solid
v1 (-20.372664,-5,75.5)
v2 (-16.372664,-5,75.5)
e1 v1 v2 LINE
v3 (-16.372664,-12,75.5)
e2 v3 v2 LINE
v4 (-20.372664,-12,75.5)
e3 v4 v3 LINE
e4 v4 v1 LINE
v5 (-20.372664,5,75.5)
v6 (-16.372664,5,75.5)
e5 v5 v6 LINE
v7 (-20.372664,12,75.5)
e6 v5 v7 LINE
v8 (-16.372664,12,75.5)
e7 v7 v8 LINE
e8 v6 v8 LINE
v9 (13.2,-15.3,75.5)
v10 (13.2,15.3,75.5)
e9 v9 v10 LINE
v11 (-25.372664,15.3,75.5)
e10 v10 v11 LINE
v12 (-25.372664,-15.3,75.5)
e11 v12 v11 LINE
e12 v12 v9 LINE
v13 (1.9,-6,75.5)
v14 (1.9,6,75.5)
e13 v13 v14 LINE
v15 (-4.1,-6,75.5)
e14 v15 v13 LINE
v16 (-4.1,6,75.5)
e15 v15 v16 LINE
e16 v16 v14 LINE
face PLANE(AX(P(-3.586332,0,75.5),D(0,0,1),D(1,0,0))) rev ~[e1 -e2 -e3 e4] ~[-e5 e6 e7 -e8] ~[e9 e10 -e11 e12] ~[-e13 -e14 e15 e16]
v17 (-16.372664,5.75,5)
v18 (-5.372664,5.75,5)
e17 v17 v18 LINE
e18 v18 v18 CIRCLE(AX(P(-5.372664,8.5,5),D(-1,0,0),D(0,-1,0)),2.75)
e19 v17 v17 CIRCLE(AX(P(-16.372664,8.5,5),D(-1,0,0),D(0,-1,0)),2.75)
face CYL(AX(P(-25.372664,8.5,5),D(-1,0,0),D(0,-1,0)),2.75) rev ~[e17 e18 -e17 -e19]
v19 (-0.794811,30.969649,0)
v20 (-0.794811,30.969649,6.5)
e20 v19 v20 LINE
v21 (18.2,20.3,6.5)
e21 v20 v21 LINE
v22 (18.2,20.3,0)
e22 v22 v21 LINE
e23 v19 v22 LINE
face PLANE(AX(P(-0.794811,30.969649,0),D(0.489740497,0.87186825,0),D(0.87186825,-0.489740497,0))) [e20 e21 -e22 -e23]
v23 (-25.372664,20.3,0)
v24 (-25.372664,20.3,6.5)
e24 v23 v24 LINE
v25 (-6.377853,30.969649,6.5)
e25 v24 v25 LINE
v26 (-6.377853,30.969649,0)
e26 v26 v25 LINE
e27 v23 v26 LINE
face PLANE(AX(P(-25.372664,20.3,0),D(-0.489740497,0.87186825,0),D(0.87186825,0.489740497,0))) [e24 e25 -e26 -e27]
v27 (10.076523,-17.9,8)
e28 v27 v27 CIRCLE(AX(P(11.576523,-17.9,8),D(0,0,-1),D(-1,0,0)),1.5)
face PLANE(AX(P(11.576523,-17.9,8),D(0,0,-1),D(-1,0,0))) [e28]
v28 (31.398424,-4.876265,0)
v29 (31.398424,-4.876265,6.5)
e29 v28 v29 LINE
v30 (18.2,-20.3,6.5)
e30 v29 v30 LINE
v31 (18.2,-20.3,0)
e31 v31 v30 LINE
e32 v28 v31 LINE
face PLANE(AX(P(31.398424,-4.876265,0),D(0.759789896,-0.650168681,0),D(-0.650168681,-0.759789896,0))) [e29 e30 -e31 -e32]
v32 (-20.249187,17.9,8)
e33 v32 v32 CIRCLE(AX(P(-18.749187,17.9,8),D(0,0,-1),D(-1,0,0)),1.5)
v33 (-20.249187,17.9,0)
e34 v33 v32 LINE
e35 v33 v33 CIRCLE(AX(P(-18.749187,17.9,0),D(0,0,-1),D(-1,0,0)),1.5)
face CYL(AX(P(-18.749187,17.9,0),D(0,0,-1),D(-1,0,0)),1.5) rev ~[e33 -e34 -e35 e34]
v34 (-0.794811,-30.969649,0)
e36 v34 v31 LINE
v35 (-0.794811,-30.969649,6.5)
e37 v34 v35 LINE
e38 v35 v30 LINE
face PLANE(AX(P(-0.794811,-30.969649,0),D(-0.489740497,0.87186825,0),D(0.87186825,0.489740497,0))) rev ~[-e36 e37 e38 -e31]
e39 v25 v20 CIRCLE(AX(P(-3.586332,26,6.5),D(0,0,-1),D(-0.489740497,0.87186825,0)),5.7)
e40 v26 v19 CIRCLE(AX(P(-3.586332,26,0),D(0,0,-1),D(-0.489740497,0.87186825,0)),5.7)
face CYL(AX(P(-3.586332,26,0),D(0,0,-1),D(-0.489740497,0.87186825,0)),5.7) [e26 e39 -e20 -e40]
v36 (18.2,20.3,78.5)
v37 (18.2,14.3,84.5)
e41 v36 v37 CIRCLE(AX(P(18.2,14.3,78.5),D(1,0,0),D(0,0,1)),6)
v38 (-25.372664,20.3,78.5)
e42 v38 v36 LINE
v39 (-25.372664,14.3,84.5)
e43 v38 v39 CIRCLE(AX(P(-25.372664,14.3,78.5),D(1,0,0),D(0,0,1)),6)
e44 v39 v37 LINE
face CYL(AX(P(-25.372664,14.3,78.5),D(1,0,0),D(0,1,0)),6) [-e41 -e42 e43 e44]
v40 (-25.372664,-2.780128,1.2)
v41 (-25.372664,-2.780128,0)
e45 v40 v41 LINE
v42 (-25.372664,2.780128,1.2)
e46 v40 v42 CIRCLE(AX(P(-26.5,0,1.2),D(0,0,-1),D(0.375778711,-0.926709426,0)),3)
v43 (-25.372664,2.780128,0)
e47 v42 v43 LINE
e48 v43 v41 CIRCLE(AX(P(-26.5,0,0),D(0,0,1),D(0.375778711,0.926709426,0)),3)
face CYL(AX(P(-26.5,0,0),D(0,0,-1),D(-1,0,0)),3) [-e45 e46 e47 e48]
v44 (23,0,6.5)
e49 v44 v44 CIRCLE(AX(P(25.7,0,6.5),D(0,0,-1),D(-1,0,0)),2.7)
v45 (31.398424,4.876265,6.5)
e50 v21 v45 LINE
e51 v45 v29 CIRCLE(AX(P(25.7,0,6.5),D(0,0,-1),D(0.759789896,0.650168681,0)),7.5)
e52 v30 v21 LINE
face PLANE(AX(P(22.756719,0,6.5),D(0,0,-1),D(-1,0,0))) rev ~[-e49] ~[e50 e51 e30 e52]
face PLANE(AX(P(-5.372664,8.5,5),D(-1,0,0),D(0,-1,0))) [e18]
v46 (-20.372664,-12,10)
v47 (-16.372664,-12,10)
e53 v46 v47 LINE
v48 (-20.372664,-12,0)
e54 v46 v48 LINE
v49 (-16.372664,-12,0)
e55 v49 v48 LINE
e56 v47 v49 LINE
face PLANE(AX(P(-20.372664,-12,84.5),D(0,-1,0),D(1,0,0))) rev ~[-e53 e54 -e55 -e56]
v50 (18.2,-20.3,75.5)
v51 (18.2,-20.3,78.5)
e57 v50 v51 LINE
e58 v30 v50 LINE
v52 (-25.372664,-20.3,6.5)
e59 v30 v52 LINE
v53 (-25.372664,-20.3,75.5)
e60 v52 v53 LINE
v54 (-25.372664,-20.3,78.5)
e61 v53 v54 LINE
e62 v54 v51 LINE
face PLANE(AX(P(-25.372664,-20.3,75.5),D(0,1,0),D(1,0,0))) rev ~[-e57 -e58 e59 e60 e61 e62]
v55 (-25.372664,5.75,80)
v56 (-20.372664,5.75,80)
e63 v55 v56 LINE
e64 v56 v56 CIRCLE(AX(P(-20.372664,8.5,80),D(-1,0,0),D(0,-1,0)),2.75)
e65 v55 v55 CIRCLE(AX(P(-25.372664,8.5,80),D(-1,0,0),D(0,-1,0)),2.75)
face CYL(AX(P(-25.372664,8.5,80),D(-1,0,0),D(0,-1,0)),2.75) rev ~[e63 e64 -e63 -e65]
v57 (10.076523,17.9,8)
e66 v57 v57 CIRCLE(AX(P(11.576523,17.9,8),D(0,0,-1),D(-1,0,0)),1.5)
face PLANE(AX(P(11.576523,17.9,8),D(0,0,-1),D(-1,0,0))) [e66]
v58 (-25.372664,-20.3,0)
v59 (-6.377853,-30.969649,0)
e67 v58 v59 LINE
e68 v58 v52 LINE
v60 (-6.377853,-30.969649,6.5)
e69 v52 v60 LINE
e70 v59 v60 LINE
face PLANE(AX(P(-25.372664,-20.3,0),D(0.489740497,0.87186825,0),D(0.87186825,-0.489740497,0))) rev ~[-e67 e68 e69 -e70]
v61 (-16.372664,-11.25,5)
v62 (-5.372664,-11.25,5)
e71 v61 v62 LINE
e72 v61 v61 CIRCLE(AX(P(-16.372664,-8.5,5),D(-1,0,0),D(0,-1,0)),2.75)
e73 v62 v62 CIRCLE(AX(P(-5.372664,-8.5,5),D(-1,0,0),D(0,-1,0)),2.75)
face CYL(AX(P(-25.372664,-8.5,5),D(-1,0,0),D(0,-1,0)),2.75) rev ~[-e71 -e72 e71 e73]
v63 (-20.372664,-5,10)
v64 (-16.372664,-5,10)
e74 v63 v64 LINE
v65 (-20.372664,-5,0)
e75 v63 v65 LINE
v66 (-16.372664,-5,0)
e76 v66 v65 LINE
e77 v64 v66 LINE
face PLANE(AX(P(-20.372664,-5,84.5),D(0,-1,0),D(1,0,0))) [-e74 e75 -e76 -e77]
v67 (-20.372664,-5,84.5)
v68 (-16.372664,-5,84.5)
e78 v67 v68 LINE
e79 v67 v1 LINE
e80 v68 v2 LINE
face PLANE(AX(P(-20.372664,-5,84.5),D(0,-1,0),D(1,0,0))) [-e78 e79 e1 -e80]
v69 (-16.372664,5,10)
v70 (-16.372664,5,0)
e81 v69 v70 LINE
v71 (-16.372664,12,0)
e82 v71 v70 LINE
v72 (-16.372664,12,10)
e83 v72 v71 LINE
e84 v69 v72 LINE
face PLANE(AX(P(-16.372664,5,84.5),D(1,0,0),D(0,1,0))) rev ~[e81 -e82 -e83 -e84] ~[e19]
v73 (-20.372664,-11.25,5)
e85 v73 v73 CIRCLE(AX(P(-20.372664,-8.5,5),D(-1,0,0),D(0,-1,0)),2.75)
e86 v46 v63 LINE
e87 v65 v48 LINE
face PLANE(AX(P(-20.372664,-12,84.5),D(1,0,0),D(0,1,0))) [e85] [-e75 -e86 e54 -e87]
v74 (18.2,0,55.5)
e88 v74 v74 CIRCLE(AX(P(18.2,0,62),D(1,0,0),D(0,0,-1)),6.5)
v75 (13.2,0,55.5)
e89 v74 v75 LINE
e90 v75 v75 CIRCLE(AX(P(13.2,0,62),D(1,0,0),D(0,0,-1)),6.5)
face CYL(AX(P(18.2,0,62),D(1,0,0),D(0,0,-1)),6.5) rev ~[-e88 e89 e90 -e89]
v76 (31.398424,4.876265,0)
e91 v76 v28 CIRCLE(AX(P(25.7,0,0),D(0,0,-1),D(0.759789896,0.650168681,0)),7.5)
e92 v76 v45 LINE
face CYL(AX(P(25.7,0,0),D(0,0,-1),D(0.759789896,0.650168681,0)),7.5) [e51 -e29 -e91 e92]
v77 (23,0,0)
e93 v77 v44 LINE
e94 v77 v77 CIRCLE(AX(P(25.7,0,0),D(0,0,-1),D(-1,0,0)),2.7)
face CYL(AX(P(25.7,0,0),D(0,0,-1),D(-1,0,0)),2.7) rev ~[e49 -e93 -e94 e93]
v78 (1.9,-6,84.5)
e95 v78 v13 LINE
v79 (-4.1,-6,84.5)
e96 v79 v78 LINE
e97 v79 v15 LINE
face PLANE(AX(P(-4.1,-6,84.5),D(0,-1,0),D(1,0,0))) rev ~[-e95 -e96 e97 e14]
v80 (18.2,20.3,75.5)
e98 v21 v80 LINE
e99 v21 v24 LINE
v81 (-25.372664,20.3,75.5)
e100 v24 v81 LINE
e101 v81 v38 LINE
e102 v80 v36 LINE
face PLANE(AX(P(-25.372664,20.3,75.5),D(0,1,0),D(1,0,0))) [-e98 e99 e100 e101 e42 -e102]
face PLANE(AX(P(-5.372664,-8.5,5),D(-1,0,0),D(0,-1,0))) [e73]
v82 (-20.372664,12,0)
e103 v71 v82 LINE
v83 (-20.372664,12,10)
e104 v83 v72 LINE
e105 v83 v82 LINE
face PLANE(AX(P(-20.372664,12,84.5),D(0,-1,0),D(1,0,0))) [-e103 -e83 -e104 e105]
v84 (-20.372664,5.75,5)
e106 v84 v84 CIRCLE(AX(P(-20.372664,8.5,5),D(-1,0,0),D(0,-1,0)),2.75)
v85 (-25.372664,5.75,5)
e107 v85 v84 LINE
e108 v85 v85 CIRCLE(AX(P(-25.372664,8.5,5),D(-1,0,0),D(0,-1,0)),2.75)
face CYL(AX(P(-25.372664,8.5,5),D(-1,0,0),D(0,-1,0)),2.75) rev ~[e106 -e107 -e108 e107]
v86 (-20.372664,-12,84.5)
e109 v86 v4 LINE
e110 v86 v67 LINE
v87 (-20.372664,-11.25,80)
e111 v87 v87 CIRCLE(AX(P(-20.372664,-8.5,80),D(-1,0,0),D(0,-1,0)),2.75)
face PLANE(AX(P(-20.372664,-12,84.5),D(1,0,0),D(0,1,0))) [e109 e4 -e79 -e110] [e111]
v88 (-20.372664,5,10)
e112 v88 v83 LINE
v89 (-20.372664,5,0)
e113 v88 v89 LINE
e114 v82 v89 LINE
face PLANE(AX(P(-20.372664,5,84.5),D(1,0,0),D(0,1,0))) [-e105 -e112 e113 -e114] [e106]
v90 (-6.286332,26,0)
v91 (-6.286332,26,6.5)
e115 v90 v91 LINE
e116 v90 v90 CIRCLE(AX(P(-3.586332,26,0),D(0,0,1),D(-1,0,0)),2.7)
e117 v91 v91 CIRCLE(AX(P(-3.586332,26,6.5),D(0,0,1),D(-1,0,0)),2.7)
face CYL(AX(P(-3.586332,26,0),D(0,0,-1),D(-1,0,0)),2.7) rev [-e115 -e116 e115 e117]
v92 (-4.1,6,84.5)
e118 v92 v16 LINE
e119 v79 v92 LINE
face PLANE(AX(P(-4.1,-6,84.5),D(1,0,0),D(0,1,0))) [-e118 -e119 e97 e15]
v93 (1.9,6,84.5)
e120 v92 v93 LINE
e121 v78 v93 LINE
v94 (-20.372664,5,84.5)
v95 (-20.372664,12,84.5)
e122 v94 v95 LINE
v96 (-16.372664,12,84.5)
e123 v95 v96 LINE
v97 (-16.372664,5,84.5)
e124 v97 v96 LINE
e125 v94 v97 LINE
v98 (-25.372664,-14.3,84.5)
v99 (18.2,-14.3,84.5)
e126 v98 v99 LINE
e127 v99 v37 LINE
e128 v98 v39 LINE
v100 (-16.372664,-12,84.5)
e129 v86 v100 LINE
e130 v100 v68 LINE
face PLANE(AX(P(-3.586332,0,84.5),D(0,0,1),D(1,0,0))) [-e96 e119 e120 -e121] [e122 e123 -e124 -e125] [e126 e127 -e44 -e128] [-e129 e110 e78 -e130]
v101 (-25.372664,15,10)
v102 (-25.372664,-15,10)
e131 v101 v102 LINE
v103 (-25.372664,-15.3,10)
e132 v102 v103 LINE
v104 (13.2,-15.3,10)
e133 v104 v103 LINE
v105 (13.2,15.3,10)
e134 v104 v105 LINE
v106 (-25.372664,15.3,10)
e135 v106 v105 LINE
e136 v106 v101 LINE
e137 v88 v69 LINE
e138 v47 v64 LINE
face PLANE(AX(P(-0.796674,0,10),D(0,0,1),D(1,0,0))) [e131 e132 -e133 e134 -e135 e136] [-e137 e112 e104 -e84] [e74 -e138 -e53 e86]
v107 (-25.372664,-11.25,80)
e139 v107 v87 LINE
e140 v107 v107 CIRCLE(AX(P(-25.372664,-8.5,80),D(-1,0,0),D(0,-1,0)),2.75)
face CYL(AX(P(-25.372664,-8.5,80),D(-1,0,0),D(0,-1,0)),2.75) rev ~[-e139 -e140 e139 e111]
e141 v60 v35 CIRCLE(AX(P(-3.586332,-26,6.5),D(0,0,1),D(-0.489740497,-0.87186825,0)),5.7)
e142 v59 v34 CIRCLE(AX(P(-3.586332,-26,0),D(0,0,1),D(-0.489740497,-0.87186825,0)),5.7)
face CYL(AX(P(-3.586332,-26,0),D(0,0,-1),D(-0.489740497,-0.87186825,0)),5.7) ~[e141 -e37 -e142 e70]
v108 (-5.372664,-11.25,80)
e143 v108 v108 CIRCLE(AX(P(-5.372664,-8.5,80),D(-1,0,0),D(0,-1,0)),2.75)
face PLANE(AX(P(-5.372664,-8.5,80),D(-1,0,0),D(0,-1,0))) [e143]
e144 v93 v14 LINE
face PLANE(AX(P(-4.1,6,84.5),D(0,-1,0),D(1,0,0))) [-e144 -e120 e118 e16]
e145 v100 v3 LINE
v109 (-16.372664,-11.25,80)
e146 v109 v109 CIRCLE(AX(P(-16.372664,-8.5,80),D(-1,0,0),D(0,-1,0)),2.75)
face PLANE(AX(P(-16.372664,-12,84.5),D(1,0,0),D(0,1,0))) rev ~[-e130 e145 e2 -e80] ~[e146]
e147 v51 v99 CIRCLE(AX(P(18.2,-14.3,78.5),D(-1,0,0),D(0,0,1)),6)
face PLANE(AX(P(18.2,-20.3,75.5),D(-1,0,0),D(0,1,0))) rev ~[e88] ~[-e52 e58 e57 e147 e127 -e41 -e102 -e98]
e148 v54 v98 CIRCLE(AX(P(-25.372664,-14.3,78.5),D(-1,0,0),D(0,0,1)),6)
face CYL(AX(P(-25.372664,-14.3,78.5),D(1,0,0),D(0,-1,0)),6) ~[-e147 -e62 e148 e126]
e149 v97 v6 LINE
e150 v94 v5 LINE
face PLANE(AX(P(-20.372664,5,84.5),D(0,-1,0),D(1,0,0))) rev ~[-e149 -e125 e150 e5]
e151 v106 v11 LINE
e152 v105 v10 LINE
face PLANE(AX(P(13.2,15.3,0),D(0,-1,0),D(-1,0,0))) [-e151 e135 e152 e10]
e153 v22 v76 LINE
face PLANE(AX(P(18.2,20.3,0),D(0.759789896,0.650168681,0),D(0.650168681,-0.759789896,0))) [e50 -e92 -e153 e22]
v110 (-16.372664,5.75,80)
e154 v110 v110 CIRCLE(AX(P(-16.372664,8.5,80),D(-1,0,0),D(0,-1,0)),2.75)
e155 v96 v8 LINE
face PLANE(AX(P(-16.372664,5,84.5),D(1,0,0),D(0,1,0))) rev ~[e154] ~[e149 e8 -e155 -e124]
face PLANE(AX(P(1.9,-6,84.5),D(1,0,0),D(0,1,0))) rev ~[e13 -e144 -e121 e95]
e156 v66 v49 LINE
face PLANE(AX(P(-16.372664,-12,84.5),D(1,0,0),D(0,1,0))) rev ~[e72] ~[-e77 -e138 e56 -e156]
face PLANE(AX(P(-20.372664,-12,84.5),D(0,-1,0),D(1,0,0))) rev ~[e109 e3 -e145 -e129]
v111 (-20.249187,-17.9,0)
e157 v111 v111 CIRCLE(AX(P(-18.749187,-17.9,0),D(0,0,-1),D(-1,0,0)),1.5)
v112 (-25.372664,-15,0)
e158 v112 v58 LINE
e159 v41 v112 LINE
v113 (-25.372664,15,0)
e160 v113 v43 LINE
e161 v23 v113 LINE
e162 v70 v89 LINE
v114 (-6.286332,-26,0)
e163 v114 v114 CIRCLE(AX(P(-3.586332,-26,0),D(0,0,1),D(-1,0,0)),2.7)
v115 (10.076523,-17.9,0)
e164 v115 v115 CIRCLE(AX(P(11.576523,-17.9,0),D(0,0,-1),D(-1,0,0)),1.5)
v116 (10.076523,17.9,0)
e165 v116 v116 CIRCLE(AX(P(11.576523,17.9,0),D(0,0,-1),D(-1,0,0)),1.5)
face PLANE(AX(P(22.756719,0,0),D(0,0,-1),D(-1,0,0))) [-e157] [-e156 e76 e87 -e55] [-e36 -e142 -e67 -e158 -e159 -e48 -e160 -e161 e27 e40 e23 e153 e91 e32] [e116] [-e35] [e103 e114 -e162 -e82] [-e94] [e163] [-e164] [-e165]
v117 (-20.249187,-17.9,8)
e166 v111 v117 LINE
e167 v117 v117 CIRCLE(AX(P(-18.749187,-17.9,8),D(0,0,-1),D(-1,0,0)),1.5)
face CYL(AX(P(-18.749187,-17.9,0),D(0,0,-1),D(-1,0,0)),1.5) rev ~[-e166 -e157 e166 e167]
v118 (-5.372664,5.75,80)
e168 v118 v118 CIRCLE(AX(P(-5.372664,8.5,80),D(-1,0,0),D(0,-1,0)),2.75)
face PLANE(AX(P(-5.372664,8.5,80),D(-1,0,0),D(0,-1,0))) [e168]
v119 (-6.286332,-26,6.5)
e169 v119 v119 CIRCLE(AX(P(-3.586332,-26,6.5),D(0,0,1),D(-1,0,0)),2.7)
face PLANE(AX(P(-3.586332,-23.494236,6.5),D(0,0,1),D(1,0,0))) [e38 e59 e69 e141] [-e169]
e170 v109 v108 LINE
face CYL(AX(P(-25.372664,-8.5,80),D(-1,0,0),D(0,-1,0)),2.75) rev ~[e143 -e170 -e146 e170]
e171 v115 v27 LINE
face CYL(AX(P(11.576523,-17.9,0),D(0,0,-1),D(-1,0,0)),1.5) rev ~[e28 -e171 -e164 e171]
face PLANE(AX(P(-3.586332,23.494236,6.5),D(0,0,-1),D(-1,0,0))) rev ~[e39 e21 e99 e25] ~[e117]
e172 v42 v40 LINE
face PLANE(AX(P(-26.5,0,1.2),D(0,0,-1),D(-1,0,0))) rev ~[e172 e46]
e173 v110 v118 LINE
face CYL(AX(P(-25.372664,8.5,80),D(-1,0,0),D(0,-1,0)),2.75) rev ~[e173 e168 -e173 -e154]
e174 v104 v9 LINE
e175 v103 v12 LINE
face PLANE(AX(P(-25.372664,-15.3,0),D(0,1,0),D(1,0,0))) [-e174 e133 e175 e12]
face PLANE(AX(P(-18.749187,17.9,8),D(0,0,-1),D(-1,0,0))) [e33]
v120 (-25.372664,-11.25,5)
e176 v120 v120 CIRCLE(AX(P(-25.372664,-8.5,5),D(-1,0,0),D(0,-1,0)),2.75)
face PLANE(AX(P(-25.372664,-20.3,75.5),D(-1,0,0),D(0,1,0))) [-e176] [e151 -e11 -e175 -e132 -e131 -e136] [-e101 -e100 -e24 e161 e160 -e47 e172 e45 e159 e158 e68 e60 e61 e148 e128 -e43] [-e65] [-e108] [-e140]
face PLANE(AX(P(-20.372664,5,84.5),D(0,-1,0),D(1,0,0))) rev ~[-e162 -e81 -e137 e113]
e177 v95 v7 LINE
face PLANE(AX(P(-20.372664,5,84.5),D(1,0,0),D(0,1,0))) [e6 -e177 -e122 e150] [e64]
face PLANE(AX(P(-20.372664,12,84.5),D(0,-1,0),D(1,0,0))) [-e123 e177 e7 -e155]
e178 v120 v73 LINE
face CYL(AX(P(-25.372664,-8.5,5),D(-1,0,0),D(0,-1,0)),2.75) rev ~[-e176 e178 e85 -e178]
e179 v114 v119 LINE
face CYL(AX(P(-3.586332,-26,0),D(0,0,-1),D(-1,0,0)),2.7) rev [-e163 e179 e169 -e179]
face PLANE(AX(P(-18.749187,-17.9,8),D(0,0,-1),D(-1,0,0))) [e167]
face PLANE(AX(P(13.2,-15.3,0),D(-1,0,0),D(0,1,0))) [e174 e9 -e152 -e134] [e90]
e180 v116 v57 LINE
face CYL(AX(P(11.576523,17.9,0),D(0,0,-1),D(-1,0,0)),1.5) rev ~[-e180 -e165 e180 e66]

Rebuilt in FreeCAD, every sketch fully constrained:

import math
import FreeCAD as App
import Part
import Sketcher

V = App.Vector
Q = App.Units.Quantity


def edges_at(feature, points):
    """Names of the edges that pass closest to the given points."""
    edges = feature.Shape.Edges
    near = lambda p: min(range(len(edges)), key=lambda i: edges[i].distToShape(Part.Vertex(*p))[0])
    return sorted({f"Edge{near(p) + 1}" for p in points})

doc = App.newDocument("Part")
body = doc.addObject("PartDesign::Body", "Body")

# Sketch on XY plane
sketch1 = body.newObject("Sketcher::SketchObject", "Sketch")
sketch1.AttachmentSupport = (doc.getObject("XY_Plane"), [""])
sketch1.MapMode = "FlatFace"
sketch1.addGeometry(Part.LineSegment(V(-52, -15, 0), V(13, -15, 0)), False)
sketch1.addGeometry(Part.LineSegment(V(13, -15, 0), V(13, 15, 0)), False)
sketch1.addGeometry(Part.LineSegment(V(13, 15, 0), V(-52, 15, 0)), False)
sketch1.addGeometry(Part.LineSegment(V(-52, 15, 0), V(-52, -15, 0)), False)
sketch1.addConstraint(Sketcher.Constraint("Coincident", 0, 2, 1, 1))
sketch1.addConstraint(Sketcher.Constraint("Coincident", 1, 2, 2, 1))
sketch1.addConstraint(Sketcher.Constraint("Coincident", 2, 2, 3, 1))
sketch1.addConstraint(Sketcher.Constraint("Coincident", 3, 2, 0, 1))
sketch1.addConstraint(Sketcher.Constraint("Horizontal", 0))
sketch1.addConstraint(Sketcher.Constraint("Vertical", 1))
sketch1.addConstraint(Sketcher.Constraint("Horizontal", 2))
sketch1.addConstraint(Sketcher.Constraint("Vertical", 3))
sketch1.addConstraint(Sketcher.Constraint("DistanceY", 1, 1, 1, 2, Q("30 mm")))
sketch1.addConstraint(Sketcher.Constraint("DistanceX", 0, 1, 0, 2, Q("64.8 mm")))
sketch1.addConstraint(Sketcher.Constraint("DistanceY", 0, 2, -1, 1, Q("15 mm")))
sketch1.addConstraint(Sketcher.Constraint("DistanceX", -1, 1, 0, 2, Q("12.9 mm")))
pad1 = body.newObject("PartDesign::Pad", "Pad")
pad1.Profile = sketch1
pad1.Length = 10

# Sketch on XZ plane
sketch2 = body.newObject("Sketcher::SketchObject", "Sketch001")
sketch2.AttachmentSupport = (doc.getObject("XZ_Plane"), [""])
sketch2.MapMode = "FlatFace"
sketch2.AttachmentOffset = App.Placement(V(0, 0, -15), App.Rotation())
sketch2.addGeometry(Part.LineSegment(V(-52, 0, 0), V(-52, 10, 0)), False)
sketch2.addGeometry(Part.LineSegment(V(-52, 10, 0), V(-25, 10, 0)), False)
sketch2.addGeometry(Part.LineSegment(V(-25, 10, 0), V(-25, 0, 0)), False)
sketch2.addGeometry(Part.LineSegment(V(-25, 0, 0), V(-52, 0, 0)), False)
sketch2.addConstraint(Sketcher.Constraint("Coincident", 0, 2, 1, 1))
sketch2.addConstraint(Sketcher.Constraint("Coincident", 1, 2, 2, 1))
sketch2.addConstraint(Sketcher.Constraint("Coincident", 2, 2, 3, 1))
sketch2.addConstraint(Sketcher.Constraint("Coincident", 3, 2, 0, 1))
sketch2.addConstraint(Sketcher.Constraint("Vertical", 0))
sketch2.addConstraint(Sketcher.Constraint("Horizontal", 1))
sketch2.addConstraint(Sketcher.Constraint("Vertical", 2))
sketch2.addConstraint(Sketcher.Constraint("Horizontal", 3))
sketch2.addConstraint(Sketcher.Constraint("PointOnObject", 2, 2, -1))
sketch2.addConstraint(Sketcher.Constraint("DistanceY", 0, 1, 0, 2, Q("10 mm")))
sketch2.addConstraint(Sketcher.Constraint("DistanceX", 0, 2, -1, 1, Q("51.9 mm")))
sketch2.addConstraint(Sketcher.Constraint("DistanceX", 1, 1, 1, 2, Q("26.527336 mm")))
pocket1 = body.newObject("PartDesign::Pocket", "Pocket")
pocket1.Profile = sketch2
pocket1.Length = 80
pocket1.Reversed = True

# Sketch on YZ plane
sketch3 = body.newObject("Sketcher::SketchObject", "Sketch002")
sketch3.AttachmentSupport = (doc.getObject("YZ_Plane"), [""])
sketch3.MapMode = "FlatFace"
sketch3.AttachmentOffset = App.Placement(V(0, 0, -25.372664), App.Rotation())
sketch3.addGeometry(Part.Circle(V(-8.5, 5, 0), V(0, 0, 1), 2.8), False)
sketch3.addGeometry(Part.Circle(V(8.5, 5, 0), V(0, 0, 1), 2.8), False)
sketch3.addConstraint(Sketcher.Constraint("Equal", 0, 1))
sketch3.addConstraint(Sketcher.Constraint("Symmetric", 0, 3, 1, 3, -2))
sketch3.addConstraint(Sketcher.Constraint("Diameter", 0, Q("5.5 mm")))
sketch3.addConstraint(Sketcher.Constraint("DistanceY", -1, 1, 0, 3, Q("5 mm")))
sketch3.addConstraint(Sketcher.Constraint("DistanceX", 0, 3, 1, 3, Q("17 mm")))
pocket2 = body.newObject("PartDesign::Pocket", "Pocket001")
pocket2.Profile = sketch3
pocket2.Length = 20
pocket2.Reversed = True

# Sketch on XY plane
sketch4 = body.newObject("Sketcher::SketchObject", "Sketch003")
sketch4.AttachmentSupport = (doc.getObject("XY_Plane"), [""])
sketch4.MapMode = "FlatFace"
sketch4.addGeometry(Part.LineSegment(V(13.2, -15.3, 0), V(-25.37, -15.3, 0)), False)
sketch4.addGeometry(Part.LineSegment(V(-25.37, -15.3, 0), V(-25.37, -15, 0)), False)
sketch4.addGeometry(Part.LineSegment(V(-25.37, -15, 0), V(12.9, -15, 0)), False)
sketch4.addGeometry(Part.LineSegment(V(12.9, -15, 0), V(12.9, 15, 0)), False)
sketch4.addGeometry(Part.LineSegment(V(12.9, 15, 0), V(-25.37, 15, 0)), False)
sketch4.addGeometry(Part.LineSegment(V(-25.37, 15, 0), V(-25.37, 15.3, 0)), False)
sketch4.addGeometry(Part.LineSegment(V(-25.37, 15.3, 0), V(13.2, 15.3, 0)), False)
sketch4.addGeometry(Part.LineSegment(V(13.2, 15.3, 0), V(13.2, -15.3, 0)), False)
sketch4.addConstraint(Sketcher.Constraint("Coincident", 0, 2, 1, 1))
sketch4.addConstraint(Sketcher.Constraint("Coincident", 1, 2, 2, 1))
sketch4.addConstraint(Sketcher.Constraint("Coincident", 2, 2, 3, 1))
sketch4.addConstraint(Sketcher.Constraint("Coincident", 3, 2, 4, 1))
sketch4.addConstraint(Sketcher.Constraint("Coincident", 4, 2, 5, 1))
sketch4.addConstraint(Sketcher.Constraint("Coincident", 5, 2, 6, 1))
sketch4.addConstraint(Sketcher.Constraint("Coincident", 6, 2, 7, 1))
sketch4.addConstraint(Sketcher.Constraint("Coincident", 7, 2, 0, 1))
sketch4.addConstraint(Sketcher.Constraint("Horizontal", 0))
sketch4.addConstraint(Sketcher.Constraint("Vertical", 1))
sketch4.addConstraint(Sketcher.Constraint("Horizontal", 2))
sketch4.addConstraint(Sketcher.Constraint("Vertical", 3))
sketch4.addConstraint(Sketcher.Constraint("Horizontal", 4))
sketch4.addConstraint(Sketcher.Constraint("Vertical", 5))
sketch4.addConstraint(Sketcher.Constraint("Horizontal", 6))
sketch4.addConstraint(Sketcher.Constraint("Vertical", 7))
sketch4.addConstraint(Sketcher.Constraint("Symmetric", 1, 2, 4, 2, -1))
sketch4.addConstraint(Sketcher.Constraint("Equal", 1, 5))
sketch4.addConstraint(Sketcher.Constraint("DistanceY", 3, 1, 3, 2, Q("30 mm")))
sketch4.addConstraint(Sketcher.Constraint("DistanceY", 1, 1, 1, 2, Q("0.3 mm")))
sketch4.addConstraint(Sketcher.Constraint("DistanceX", -1, 1, 2, 2, Q("12.9 mm")))
sketch4.addConstraint(Sketcher.Constraint("DistanceX", -1, 1, 6, 2, Q("13.2 mm")))
sketch4.addConstraint(Sketcher.Constraint("DistanceX", 0, 2, 0, 1, Q("38.572664 mm")))
pad2 = body.newObject("PartDesign::Pad", "Pad001")
pad2.Profile = sketch4
pad2.Length = 10

# Sketch on XY plane
sketch5 = body.newObject("Sketcher::SketchObject", "Sketch004")
sketch5.AttachmentSupport = (doc.getObject("XY_Plane"), [""])
sketch5.MapMode = "FlatFace"
sketch5.addGeometry(Part.LineSegment(V(-25, 15, 0), V(-25, 20, 0)), False)
sketch5.addGeometry(Part.LineSegment(V(-25, 20, 0), V(18, 20, 0)), False)
sketch5.addGeometry(Part.LineSegment(V(18, 20, 0), V(18, -20, 0)), False)
sketch5.addGeometry(Part.LineSegment(V(18, -20, 0), V(-25, -20, 0)), False)
sketch5.addGeometry(Part.LineSegment(V(-25, -20, 0), V(-25, -15, 0)), False)
sketch5.addGeometry(Part.LineSegment(V(-25, -15, 0), V(13, -15, 0)), False)
sketch5.addGeometry(Part.LineSegment(V(13, -15, 0), V(13, 15, 0)), False)
sketch5.addGeometry(Part.LineSegment(V(13, 15, 0), V(-25, 15, 0)), False)
sketch5.addConstraint(Sketcher.Constraint("Coincident", 0, 2, 1, 1))
sketch5.addConstraint(Sketcher.Constraint("Coincident", 1, 2, 2, 1))
sketch5.addConstraint(Sketcher.Constraint("Coincident", 2, 2, 3, 1))
sketch5.addConstraint(Sketcher.Constraint("Coincident", 3, 2, 4, 1))
sketch5.addConstraint(Sketcher.Constraint("Coincident", 4, 2, 5, 1))
sketch5.addConstraint(Sketcher.Constraint("Coincident", 5, 2, 6, 1))
sketch5.addConstraint(Sketcher.Constraint("Coincident", 6, 2, 7, 1))
sketch5.addConstraint(Sketcher.Constraint("Coincident", 7, 2, 0, 1))
sketch5.addConstraint(Sketcher.Constraint("Vertical", 0))
sketch5.addConstraint(Sketcher.Constraint("Horizontal", 1))
sketch5.addConstraint(Sketcher.Constraint("Vertical", 2))
sketch5.addConstraint(Sketcher.Constraint("Horizontal", 3))
sketch5.addConstraint(Sketcher.Constraint("Vertical", 4))
sketch5.addConstraint(Sketcher.Constraint("Horizontal", 5))
sketch5.addConstraint(Sketcher.Constraint("Vertical", 6))
sketch5.addConstraint(Sketcher.Constraint("Horizontal", 7))
sketch5.addConstraint(Sketcher.Constraint("Symmetric", 0, 2, 3, 2, -1))
sketch5.addConstraint(Sketcher.Constraint("Equal", 0, 4))
sketch5.addConstraint(Sketcher.Constraint("DistanceY", 0, 1, 0, 2, Q("5 mm")))
sketch5.addConstraint(Sketcher.Constraint("DistanceY", 2, 2, 2, 1, Q("40.6 mm")))
sketch5.addConstraint(Sketcher.Constraint("DistanceX", 5, 2, 2, 2, Q("5 mm")))
sketch5.addConstraint(Sketcher.Constraint("DistanceX", -1, 1, 1, 2, Q("18.2 mm")))
sketch5.addConstraint(Sketcher.Constraint("DistanceX", 1, 1, 1, 2, Q("43.572664 mm")))
pad3 = body.newObject("PartDesign::Pad", "Pad002")
pad3.Profile = sketch5
pad3.Length = 75.5

# Sketch on XY plane
sketch6 = body.newObject("Sketcher::SketchObject", "Sketch005")
sketch6.AttachmentSupport = (doc.getObject("XY_Plane"), [""])
sketch6.MapMode = "FlatFace"
sketch6.AttachmentOffset = App.Placement(V(0, 0, 75.5), App.Rotation())
sketch6.addGeometry(Part.LineSegment(V(-25, 20, 0), V(-25, -20, 0)), False)
sketch6.addGeometry(Part.LineSegment(V(-25, -20, 0), V(18, -20, 0)), False)
sketch6.addGeometry(Part.LineSegment(V(18, -20, 0), V(18, 20, 0)), False)
sketch6.addGeometry(Part.LineSegment(V(18, 20, 0), V(-25, 20, 0)), False)
sketch6.addConstraint(Sketcher.Constraint("Coincident", 0, 2, 1, 1))
sketch6.addConstraint(Sketcher.Constraint("Coincident", 1, 2, 2, 1))
sketch6.addConstraint(Sketcher.Constraint("Coincident", 2, 2, 3, 1))
sketch6.addConstraint(Sketcher.Constraint("Coincident", 3, 2, 0, 1))
sketch6.addConstraint(Sketcher.Constraint("Vertical", 0))
sketch6.addConstraint(Sketcher.Constraint("Horizontal", 1))
sketch6.addConstraint(Sketcher.Constraint("Vertical", 2))
sketch6.addConstraint(Sketcher.Constraint("Horizontal", 3))
sketch6.addConstraint(Sketcher.Constraint("DistanceY", 0, 2, 0, 1, Q("40.6 mm")))
sketch6.addConstraint(Sketcher.Constraint("DistanceY", 0, 2, -1, 1, Q("20.3 mm")))
sketch6.addConstraint(Sketcher.Constraint("DistanceX", -1, 1, 1, 2, Q("18.2 mm")))
sketch6.addConstraint(Sketcher.Constraint("DistanceX", 1, 1, 1, 2, Q("43.572664 mm")))
pad4 = body.newObject("PartDesign::Pad", "Pad003")
pad4.Profile = sketch6
pad4.Length = 9
doc.recompute()

fillet = body.newObject("PartDesign::Fillet", "Fillet")
fillet.Base = (pad4, edges_at(pad4, [(-3.586, 20.3, 84.5), (-3.586, -20.3, 84.5)]))
fillet.Radius = 6

# Sketch on YZ plane
sketch7 = body.newObject("Sketcher::SketchObject", "Sketch006")
sketch7.AttachmentSupport = (doc.getObject("YZ_Plane"), [""])
sketch7.MapMode = "FlatFace"
sketch7.AttachmentOffset = App.Placement(V(0, 0, -25.372664), App.Rotation())
sketch7.addGeometry(Part.Circle(V(8.5, 80, 0), V(0, 0, 1), 2.8), False)
sketch7.addGeometry(Part.Circle(V(-8.5, 80, 0), V(0, 0, 1), 2.8), False)
sketch7.addConstraint(Sketcher.Constraint("Equal", 0, 1))
sketch7.addConstraint(Sketcher.Constraint("Symmetric", 0, 3, 1, 3, -2))
sketch7.addConstraint(Sketcher.Constraint("Diameter", 0, Q("5.5 mm")))
sketch7.addConstraint(Sketcher.Constraint("DistanceY", -1, 1, 0, 3, Q("80 mm")))
sketch7.addConstraint(Sketcher.Constraint("DistanceX", 1, 3, 0, 3, Q("17 mm")))
pocket3 = body.newObject("PartDesign::Pocket", "Pocket002")
pocket3.Profile = sketch7
pocket3.Length = 20
pocket3.Reversed = True

# Sketch on XY plane
sketch8 = body.newObject("Sketcher::SketchObject", "Sketch007")
sketch8.AttachmentSupport = (doc.getObject("XY_Plane"), [""])
sketch8.MapMode = "FlatFace"
sketch8.AttachmentOffset = App.Placement(V(0, 0, 84.5), App.Rotation())
sketch8.addGeometry(Part.LineSegment(V(-20.4, -5, 0), V(-20.4, -12, 0)), False)
sketch8.addGeometry(Part.LineSegment(V(-20.4, -12, 0), V(-16.4, -12, 0)), False)
sketch8.addGeometry(Part.LineSegment(V(-16.4, -12, 0), V(-16.4, -5, 0)), False)
sketch8.addGeometry(Part.LineSegment(V(-16.4, -5, 0), V(-20.4, -5, 0)), False)
sketch8.addGeometry(Part.LineSegment(V(-20.4, 12, 0), V(-20.4, 5, 0)), False)
sketch8.addGeometry(Part.LineSegment(V(-20.4, 5, 0), V(-16.4, 5, 0)), False)
sketch8.addGeometry(Part.LineSegment(V(-16.4, 5, 0), V(-16.4, 12, 0)), False)
sketch8.addGeometry(Part.LineSegment(V(-16.4, 12, 0), V(-20.4, 12, 0)), False)
sketch8.addConstraint(Sketcher.Constraint("Coincident", 0, 2, 1, 1))
sketch8.addConstraint(Sketcher.Constraint("Coincident", 1, 2, 2, 1))
sketch8.addConstraint(Sketcher.Constraint("Coincident", 2, 2, 3, 1))
sketch8.addConstraint(Sketcher.Constraint("Coincident", 3, 2, 0, 1))
sketch8.addConstraint(Sketcher.Constraint("Coincident", 4, 2, 5, 1))
sketch8.addConstraint(Sketcher.Constraint("Coincident", 5, 2, 6, 1))
sketch8.addConstraint(Sketcher.Constraint("Coincident", 6, 2, 7, 1))
sketch8.addConstraint(Sketcher.Constraint("Coincident", 7, 2, 4, 1))
sketch8.addConstraint(Sketcher.Constraint("Vertical", 0))
sketch8.addConstraint(Sketcher.Constraint("Horizontal", 1))
sketch8.addConstraint(Sketcher.Constraint("Vertical", 2))
sketch8.addConstraint(Sketcher.Constraint("Horizontal", 3))
sketch8.addConstraint(Sketcher.Constraint("Vertical", 4))
sketch8.addConstraint(Sketcher.Constraint("Horizontal", 5))
sketch8.addConstraint(Sketcher.Constraint("Vertical", 6))
sketch8.addConstraint(Sketcher.Constraint("Horizontal", 7))
sketch8.addConstraint(Sketcher.Constraint("Symmetric", 3, 2, 4, 2, -1))
sketch8.addConstraint(Sketcher.Constraint("Symmetric", 1, 2, 6, 2, -1))
sketch8.addConstraint(Sketcher.Constraint("DistanceX", 1, 1, 1, 2, Q("4 mm")))
sketch8.addConstraint(Sketcher.Constraint("DistanceY", 0, 2, 0, 1, Q("7 mm")))
sketch8.addConstraint(Sketcher.Constraint("DistanceY", 0, 2, -1, 1, Q("12 mm")))
sketch8.addConstraint(Sketcher.Constraint("DistanceX", 0, 2, -1, 1, Q("20.372664 mm")))
pocket4 = body.newObject("PartDesign::Pocket", "Pocket003")
pocket4.Profile = sketch8
pocket4.Length = 122

# Sketch on XY plane
sketch9 = body.newObject("Sketcher::SketchObject", "Sketch008")
sketch9.AttachmentSupport = (doc.getObject("XY_Plane"), [""])
sketch9.MapMode = "FlatFace"
sketch9.addGeometry(Part.Circle(V(-26.5, 0, 0), V(0, 0, 1), 3), False)
sketch9.addConstraint(Sketcher.Constraint("PointOnObject", 0, 3, -1))
sketch9.addConstraint(Sketcher.Constraint("Diameter", 0, Q("6 mm")))
sketch9.addConstraint(Sketcher.Constraint("DistanceX", 0, 3, -1, 1, Q("26.5 mm")))
pad5 = body.newObject("PartDesign::Pad", "Pad004")
pad5.Profile = sketch9
pad5.Length = 1.2

# Sketch on XY plane
sketch10 = body.newObject("Sketcher::SketchObject", "Sketch009")
sketch10.AttachmentSupport = (doc.getObject("XY_Plane"), [""])
sketch10.MapMode = "FlatFace"
sketch10.addGeometry(Part.ArcOfCircle(Part.Circle(V(-3.6, 26, 0), V(0, 0, 1), 5.7), math.radians(61), math.radians(119)), False)
sketch10.addGeometry(Part.LineSegment(V(-6.4, 31, 0), V(-25.4, 20.3, 0)), False)
sketch10.addGeometry(Part.LineSegment(V(-25.4, 20.3, 0), V(18.2, 20.3, 0)), False)
sketch10.addGeometry(Part.LineSegment(V(18.2, 20.3, 0), V(-0.8, 31, 0)), False)
sketch10.addGeometry(Part.Circle(V(-3.6, 26, 0), V(0, 0, 1), 2.7), False)
sketch10.addGeometry(Part.LineSegment(V(-25.4, -20.3, 0), V(-6.4, -31, 0)), False)
sketch10.addGeometry(Part.ArcOfCircle(Part.Circle(V(-3.6, -26, 0), V(0, 0, 1), 5.7), math.radians(-119), math.radians(-61)), False)
sketch10.addGeometry(Part.LineSegment(V(-0.8, -31, 0), V(18.2, -20.3, 0)), False)
sketch10.addGeometry(Part.LineSegment(V(18.2, -20.3, 0), V(-25.4, -20.3, 0)), False)
sketch10.addGeometry(Part.Circle(V(-3.6, -26, 0), V(0, 0, 1), 2.7), False)
sketch10.addConstraint(Sketcher.Constraint("Tangent", 0, 2, 1, 1))
sketch10.addConstraint(Sketcher.Constraint("Coincident", 1, 2, 2, 1))
sketch10.addConstraint(Sketcher.Constraint("Coincident", 2, 2, 3, 1))
sketch10.addConstraint(Sketcher.Constraint("Tangent", 3, 2, 0, 1))
sketch10.addConstraint(Sketcher.Constraint("Tangent", 5, 2, 6, 1))
sketch10.addConstraint(Sketcher.Constraint("Tangent", 6, 2, 7, 1))
sketch10.addConstraint(Sketcher.Constraint("Coincident", 7, 2, 8, 1))
sketch10.addConstraint(Sketcher.Constraint("Coincident", 8, 2, 5, 1))
sketch10.addConstraint(Sketcher.Constraint("Horizontal", 2))
sketch10.addConstraint(Sketcher.Constraint("Horizontal", 8))
sketch10.addConstraint(Sketcher.Constraint("Coincident", 4, 3, 0, 3))
sketch10.addConstraint(Sketcher.Constraint("Coincident", 9, 3, 6, 3))
sketch10.addConstraint(Sketcher.Constraint("Equal", 0, 6))
sketch10.addConstraint(Sketcher.Constraint("Equal", 4, 9))
sketch10.addConstraint(Sketcher.Constraint("Symmetric", 0, 3, 6, 3, -1))
sketch10.addConstraint(Sketcher.Constraint("Symmetric", 2, 2, 7, 2, -1))
sketch10.addConstraint(Sketcher.Constraint("Parallel", 3, 5))
sketch10.addConstraint(Sketcher.Constraint("Parallel", 1, 7))
sketch10.addConstraint(Sketcher.Constraint("Diameter", 4, Q("5.4 mm")))
sketch10.addConstraint(Sketcher.Constraint("Radius", 0, Q("5.7 mm")))
sketch10.addConstraint(Sketcher.Constraint("DistanceY", -1, 1, 0, 3, Q("26 mm")))
sketch10.addConstraint(Sketcher.Constraint("DistanceY", -1, 1, 1, 2, Q("20.3 mm")))
sketch10.addConstraint(Sketcher.Constraint("DistanceX", -1, 1, 2, 2, Q("18.2 mm")))
sketch10.addConstraint(Sketcher.Constraint("Distance", 1, Q("21.786332 mm")))
pad6 = body.newObject("PartDesign::Pad", "Pad005")
pad6.Profile = sketch10
pad6.Length = 6.5

# Sketch on XY plane
sketch11 = body.newObject("Sketcher::SketchObject", "Sketch010")
sketch11.AttachmentSupport = (doc.getObject("XY_Plane"), [""])
sketch11.MapMode = "FlatFace"
sketch11.addGeometry(Part.Circle(V(-18.7, 17.9, 0), V(0, 0, 1), 1.5), False)
sketch11.addGeometry(Part.Circle(V(11.6, 17.9, 0), V(0, 0, 1), 1.5), False)
sketch11.addGeometry(Part.Circle(V(11.6, -17.9, 0), V(0, 0, 1), 1.5), False)
sketch11.addGeometry(Part.Circle(V(-18.7, -17.9, 0), V(0, 0, 1), 1.5), False)
sketch11.addConstraint(Sketcher.Constraint("Equal", 0, 1))
sketch11.addConstraint(Sketcher.Constraint("Equal", 1, 2))
sketch11.addConstraint(Sketcher.Constraint("Equal", 2, 3))
sketch11.addConstraint(Sketcher.Constraint("Symmetric", 1, 3, 2, 3, -1))
sketch11.addConstraint(Sketcher.Constraint("Symmetric", 0, 3, 3, 3, -1))
sketch11.addConstraint(Sketcher.Constraint("Horizontal", 0, 3, 1, 3))
sketch11.addConstraint(Sketcher.Constraint("Diameter", 0, Q("3 mm")))
sketch11.addConstraint(Sketcher.Constraint("DistanceY", -1, 1, 0, 3, Q("17.9 mm")))
sketch11.addConstraint(Sketcher.Constraint("DistanceX", 0, 3, 1, 3, Q("30.325709 mm")))
sketch11.addConstraint(Sketcher.Constraint("DistanceX", 0, 3, -1, 1, Q("18.749187 mm")))
pocket5 = body.newObject("PartDesign::Pocket", "Pocket004")
pocket5.Profile = sketch11
pocket5.Length = 8
pocket5.Reversed = True

# Sketch on YZ plane
sketch12 = body.newObject("Sketcher::SketchObject", "Sketch011")
sketch12.AttachmentSupport = (doc.getObject("YZ_Plane"), [""])
sketch12.MapMode = "FlatFace"
sketch12.AttachmentOffset = App.Placement(V(0, 0, 13.2), App.Rotation())
sketch12.addGeometry(Part.Circle(V(0, 62, 0), V(0, 0, 1), 4.2), False)
sketch12.addConstraint(Sketcher.Constraint("PointOnObject", 0, 3, -2))
sketch12.addConstraint(Sketcher.Constraint("Diameter", 0, Q("8.4 mm")))
sketch12.addConstraint(Sketcher.Constraint("DistanceY", -1, 1, 0, 3, Q("62 mm")))
pocket6 = body.newObject("PartDesign::Pocket", "Pocket005")
pocket6.Profile = sketch12
pocket6.Length = 8
pocket6.Reversed = True

# Sketch on XY plane
sketch13 = body.newObject("Sketcher::SketchObject", "Sketch012")
sketch13.AttachmentSupport = (doc.getObject("XY_Plane"), [""])
sketch13.MapMode = "FlatFace"
sketch13.addGeometry(Part.LineSegment(V(31, -5, 0), V(18, -20, 0)), False)
sketch13.addGeometry(Part.LineSegment(V(18, -20, 0), V(18, 20, 0)), False)
sketch13.addGeometry(Part.LineSegment(V(18, 20, 0), V(31, 5, 0)), False)
sketch13.addGeometry(Part.ArcOfCircle(Part.Circle(V(26, 0, 0), V(0, 0, 1), 8), math.radians(-41), math.radians(41)), False)
sketch13.addConstraint(Sketcher.Constraint("Coincident", 0, 2, 1, 1))
sketch13.addConstraint(Sketcher.Constraint("Coincident", 1, 2, 2, 1))
sketch13.addConstraint(Sketcher.Constraint("Tangent", 2, 2, 3, 2))
sketch13.addConstraint(Sketcher.Constraint("Tangent", 3, 1, 0, 1))
sketch13.addConstraint(Sketcher.Constraint("Vertical", 1))
sketch13.addConstraint(Sketcher.Constraint("Symmetric", 2, 2, 3, 1, -1))
sketch13.addConstraint(Sketcher.Constraint("Radius", 3, Q("7.5 mm")))
sketch13.addConstraint(Sketcher.Constraint("DistanceY", 1, 1, 1, 2, Q("40.6 mm")))
sketch13.addConstraint(Sketcher.Constraint("Distance", 0, Q("20.3 mm")))
sketch13.addConstraint(Sketcher.Constraint("DistanceX", -1, 1, 3, 3, Q("25.7 mm")))
pad7 = body.newObject("PartDesign::Pad", "Pad006")
pad7.Profile = sketch13
pad7.Length = 6.5

# Sketch on XY plane
sketch14 = body.newObject("Sketcher::SketchObject", "Sketch013")
sketch14.AttachmentSupport = (doc.getObject("XY_Plane"), [""])
sketch14.MapMode = "FlatFace"
sketch14.addGeometry(Part.Circle(V(25.7, 0, 0), V(0, 0, 1), 2.7), False)
sketch14.addConstraint(Sketcher.Constraint("PointOnObject", 0, 3, -1))
sketch14.addConstraint(Sketcher.Constraint("Diameter", 0, Q("5.4 mm")))
sketch14.addConstraint(Sketcher.Constraint("DistanceX", -1, 1, 0, 3, Q("25.7 mm")))
pocket7 = body.newObject("PartDesign::Pocket", "Pocket006")
pocket7.Profile = sketch14
pocket7.Length = 8
pocket7.Reversed = True

# Sketch on XY plane
sketch15 = body.newObject("Sketcher::SketchObject", "Sketch014")
sketch15.AttachmentSupport = (doc.getObject("XY_Plane"), [""])
sketch15.MapMode = "FlatFace"
sketch15.AttachmentOffset = App.Placement(V(0, 0, 84.5), App.Rotation())
sketch15.addGeometry(Part.LineSegment(V(-4, 6, 0), V(-4, -6, 0)), False)
sketch15.addGeometry(Part.LineSegment(V(-4, -6, 0), V(2, -6, 0)), False)
sketch15.addGeometry(Part.LineSegment(V(2, -6, 0), V(2, 6, 0)), False)
sketch15.addGeometry(Part.LineSegment(V(2, 6, 0), V(-4, 6, 0)), False)
sketch15.addConstraint(Sketcher.Constraint("Coincident", 0, 2, 1, 1))
sketch15.addConstraint(Sketcher.Constraint("Coincident", 1, 2, 2, 1))
sketch15.addConstraint(Sketcher.Constraint("Coincident", 2, 2, 3, 1))
sketch15.addConstraint(Sketcher.Constraint("Coincident", 3, 2, 0, 1))
sketch15.addConstraint(Sketcher.Constraint("Vertical", 0))
sketch15.addConstraint(Sketcher.Constraint("Horizontal", 1))
sketch15.addConstraint(Sketcher.Constraint("Vertical", 2))
sketch15.addConstraint(Sketcher.Constraint("Horizontal", 3))
sketch15.addConstraint(Sketcher.Constraint("DistanceX", 1, 1, 1, 2, Q("6 mm")))
sketch15.addConstraint(Sketcher.Constraint("DistanceY", 0, 2, 0, 1, Q("12 mm")))
sketch15.addConstraint(Sketcher.Constraint("DistanceY", 0, 2, -1, 1, Q("6 mm")))
sketch15.addConstraint(Sketcher.Constraint("DistanceX", 0, 2, -1, 1, Q("4.1 mm")))
pocket8 = body.newObject("PartDesign::Pocket", "Pocket007")
pocket8.Profile = sketch15
pocket8.Length = 23

# Sketch on YZ plane
sketch16 = body.newObject("Sketcher::SketchObject", "Sketch015")
sketch16.AttachmentSupport = (doc.getObject("YZ_Plane"), [""])
sketch16.MapMode = "FlatFace"
sketch16.AttachmentOffset = App.Placement(V(0, 0, 18.2), App.Rotation())
sketch16.addGeometry(Part.Circle(V(0, 62, 0), V(0, 0, 1), 6), False)
sketch16.addConstraint(Sketcher.Constraint("PointOnObject", 0, 3, -2))
sketch16.addConstraint(Sketcher.Constraint("Diameter", 0, Q("13 mm")))
sketch16.addConstraint(Sketcher.Constraint("DistanceY", -1, 1, 0, 3, Q("62 mm")))
pocket9 = body.newObject("PartDesign::Pocket", "Pocket008")
pocket9.Profile = sketch16
pocket9.Length = 23

doc.recompute()
